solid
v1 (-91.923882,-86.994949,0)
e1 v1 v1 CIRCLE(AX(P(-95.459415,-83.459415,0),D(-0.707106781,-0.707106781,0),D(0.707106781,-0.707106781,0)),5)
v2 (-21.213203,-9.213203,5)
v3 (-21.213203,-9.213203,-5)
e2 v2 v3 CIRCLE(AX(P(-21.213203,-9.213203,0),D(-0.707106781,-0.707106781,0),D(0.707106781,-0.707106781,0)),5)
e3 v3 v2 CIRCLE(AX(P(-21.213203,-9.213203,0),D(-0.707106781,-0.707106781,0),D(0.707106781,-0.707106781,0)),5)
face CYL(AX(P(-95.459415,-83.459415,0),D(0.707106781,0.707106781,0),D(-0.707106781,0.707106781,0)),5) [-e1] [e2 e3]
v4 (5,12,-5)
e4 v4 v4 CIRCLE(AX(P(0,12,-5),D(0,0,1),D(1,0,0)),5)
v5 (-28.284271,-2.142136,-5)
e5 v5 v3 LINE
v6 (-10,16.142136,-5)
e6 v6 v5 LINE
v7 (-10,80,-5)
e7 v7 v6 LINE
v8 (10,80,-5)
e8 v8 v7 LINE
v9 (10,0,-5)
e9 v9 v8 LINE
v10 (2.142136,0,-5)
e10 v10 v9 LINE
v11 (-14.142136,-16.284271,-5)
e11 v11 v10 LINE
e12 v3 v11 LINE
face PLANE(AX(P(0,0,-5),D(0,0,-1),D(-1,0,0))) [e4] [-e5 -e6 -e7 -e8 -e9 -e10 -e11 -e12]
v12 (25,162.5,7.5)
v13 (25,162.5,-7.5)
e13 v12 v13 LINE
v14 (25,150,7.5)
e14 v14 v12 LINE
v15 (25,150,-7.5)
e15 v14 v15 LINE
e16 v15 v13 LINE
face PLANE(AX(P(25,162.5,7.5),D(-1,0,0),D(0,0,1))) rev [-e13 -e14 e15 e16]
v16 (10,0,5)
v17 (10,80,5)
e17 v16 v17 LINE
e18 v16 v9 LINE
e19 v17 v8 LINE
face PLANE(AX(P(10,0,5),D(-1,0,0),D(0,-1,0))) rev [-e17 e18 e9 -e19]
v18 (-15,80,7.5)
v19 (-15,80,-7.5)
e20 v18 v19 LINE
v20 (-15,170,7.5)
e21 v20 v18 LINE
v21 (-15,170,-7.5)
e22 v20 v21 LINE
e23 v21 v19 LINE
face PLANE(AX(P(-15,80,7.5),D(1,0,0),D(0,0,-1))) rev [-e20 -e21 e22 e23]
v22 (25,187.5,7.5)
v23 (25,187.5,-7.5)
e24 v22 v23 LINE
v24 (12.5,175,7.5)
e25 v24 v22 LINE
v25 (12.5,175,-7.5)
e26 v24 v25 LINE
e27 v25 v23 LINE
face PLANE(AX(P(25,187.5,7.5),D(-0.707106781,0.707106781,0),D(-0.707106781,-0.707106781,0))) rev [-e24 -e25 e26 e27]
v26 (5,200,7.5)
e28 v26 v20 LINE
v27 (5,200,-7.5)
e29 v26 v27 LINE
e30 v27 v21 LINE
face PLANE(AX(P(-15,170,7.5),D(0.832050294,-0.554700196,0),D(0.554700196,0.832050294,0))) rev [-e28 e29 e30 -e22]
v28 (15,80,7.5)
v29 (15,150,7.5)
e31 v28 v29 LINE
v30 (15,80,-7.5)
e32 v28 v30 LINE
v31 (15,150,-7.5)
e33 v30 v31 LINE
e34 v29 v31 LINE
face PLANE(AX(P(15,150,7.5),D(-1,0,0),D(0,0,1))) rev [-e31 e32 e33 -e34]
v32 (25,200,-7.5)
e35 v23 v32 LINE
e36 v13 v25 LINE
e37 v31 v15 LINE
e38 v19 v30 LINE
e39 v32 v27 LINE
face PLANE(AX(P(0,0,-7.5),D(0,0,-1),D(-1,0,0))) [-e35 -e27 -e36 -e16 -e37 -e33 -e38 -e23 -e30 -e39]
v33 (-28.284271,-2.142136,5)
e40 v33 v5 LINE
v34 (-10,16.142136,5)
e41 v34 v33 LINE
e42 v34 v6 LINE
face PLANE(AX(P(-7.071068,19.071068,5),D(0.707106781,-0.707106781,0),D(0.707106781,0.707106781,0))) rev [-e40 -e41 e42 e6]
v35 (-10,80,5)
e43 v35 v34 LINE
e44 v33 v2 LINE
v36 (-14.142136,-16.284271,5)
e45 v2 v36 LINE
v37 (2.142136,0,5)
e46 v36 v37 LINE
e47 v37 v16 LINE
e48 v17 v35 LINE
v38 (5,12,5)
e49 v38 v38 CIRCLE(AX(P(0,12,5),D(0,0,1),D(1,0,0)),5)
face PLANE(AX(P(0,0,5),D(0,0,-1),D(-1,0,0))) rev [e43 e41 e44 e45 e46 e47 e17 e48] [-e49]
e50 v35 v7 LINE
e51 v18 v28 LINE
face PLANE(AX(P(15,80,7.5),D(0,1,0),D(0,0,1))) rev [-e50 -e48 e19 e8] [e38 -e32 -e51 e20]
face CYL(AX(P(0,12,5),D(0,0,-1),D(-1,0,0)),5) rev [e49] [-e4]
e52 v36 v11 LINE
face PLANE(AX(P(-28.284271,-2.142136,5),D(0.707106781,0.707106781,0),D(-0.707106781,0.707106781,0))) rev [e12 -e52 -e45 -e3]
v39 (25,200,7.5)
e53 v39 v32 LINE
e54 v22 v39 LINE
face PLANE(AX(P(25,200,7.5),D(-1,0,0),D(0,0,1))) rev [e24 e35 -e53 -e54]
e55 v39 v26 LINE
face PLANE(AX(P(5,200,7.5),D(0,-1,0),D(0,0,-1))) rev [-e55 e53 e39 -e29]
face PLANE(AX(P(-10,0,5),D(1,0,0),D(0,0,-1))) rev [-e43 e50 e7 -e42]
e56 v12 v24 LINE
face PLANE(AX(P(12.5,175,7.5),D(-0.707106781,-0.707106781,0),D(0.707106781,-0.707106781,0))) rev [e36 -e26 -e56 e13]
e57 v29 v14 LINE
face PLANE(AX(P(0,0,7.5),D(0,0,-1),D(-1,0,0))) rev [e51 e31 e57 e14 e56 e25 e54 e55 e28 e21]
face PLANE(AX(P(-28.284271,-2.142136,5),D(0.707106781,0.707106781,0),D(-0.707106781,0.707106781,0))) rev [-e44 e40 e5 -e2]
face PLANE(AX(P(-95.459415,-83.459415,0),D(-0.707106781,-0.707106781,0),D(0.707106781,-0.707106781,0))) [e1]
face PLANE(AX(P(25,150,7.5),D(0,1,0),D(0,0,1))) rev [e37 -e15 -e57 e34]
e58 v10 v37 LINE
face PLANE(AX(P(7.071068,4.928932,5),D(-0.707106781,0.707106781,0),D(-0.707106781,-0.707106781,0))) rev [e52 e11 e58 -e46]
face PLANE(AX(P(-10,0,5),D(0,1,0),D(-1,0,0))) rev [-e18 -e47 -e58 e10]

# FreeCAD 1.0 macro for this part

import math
import FreeCAD as App
import Part
import Sketcher

V = App.Vector
Q = App.Units.Quantity

doc = App.newDocument("Part")
body = doc.addObject("PartDesign::Body", "Body")

sketch1 = body.newObject("Sketcher::SketchObject", "Sketch")
sketch1.AttachmentSupport = (doc.getObject("XY_Plane"), [""])
sketch1.MapMode = "FlatFace"
sketch1.addGeometry(Part.LineSegment(V(-10, 80, 0), V(-10, 0, 0)), False)
sketch1.addGeometry(Part.LineSegment(V(-10, 0, 0), V(10, 0, 0)), False)
sketch1.addGeometry(Part.LineSegment(V(10, 0, 0), V(10, 80, 0)), False)
sketch1.addGeometry(Part.LineSegment(V(10, 80, 0), V(-10, 80, 0)), False)
sketch1.addGeometry(Part.Circle(V(0, 12, 0), V(0, 0, 1), 5), False)
sketch1.addConstraint(Sketcher.Constraint("Coincident", 0, 2, 1, 1))
sketch1.addConstraint(Sketcher.Constraint("Coincident", 1, 2, 2, 1))
sketch1.addConstraint(Sketcher.Constraint("Coincident", 2, 2, 3, 1))
sketch1.addConstraint(Sketcher.Constraint("Coincident", 3, 2, 0, 1))
sketch1.addConstraint(Sketcher.Constraint("Vertical", 0))
sketch1.addConstraint(Sketcher.Constraint("Horizontal", 1))
sketch1.addConstraint(Sketcher.Constraint("Vertical", 2))
sketch1.addConstraint(Sketcher.Constraint("Horizontal", 3))
sketch1.addConstraint(Sketcher.Constraint("Symmetric", 0, 2, 1, 2, -1, 1))
sketch1.addConstraint(Sketcher.Constraint("PointOnObject", 4, 3, -2))
sketch1.addConstraint(Sketcher.Constraint("Diameter", 4, 10.0))
sketch1.addConstraint(Sketcher.Constraint("DistanceX", 1, 1, 1, 2, 20.0))
sketch1.addConstraint(Sketcher.Constraint("DistanceY", 0, 2, 0, 1, 80.0))
sketch1.addConstraint(Sketcher.Constraint("DistanceY", -1, 1, 4, 3, 12.0))
pad1 = body.newObject("PartDesign::Pad", "Pad")
pad1.Profile = sketch1
pad1.Length = 10
pad1.Midplane = True

sketch2 = body.newObject("Sketcher::SketchObject", "Sketch001")
sketch2.AttachmentSupport = (doc.getObject("XY_Plane"), [""])
sketch2.MapMode = "FlatFace"
sketch2.addGeometry(Part.LineSegment(V(-15, 170, 0), V(-15, 80, 0)), False)
sketch2.addGeometry(Part.LineSegment(V(-15, 80, 0), V(15, 80, 0)), False)
sketch2.addGeometry(Part.LineSegment(V(15, 80, 0), V(15, 150, 0)), False)
sketch2.addGeometry(Part.LineSegment(V(15, 150, 0), V(25, 150, 0)), False)
sketch2.addGeometry(Part.LineSegment(V(25, 150, 0), V(25, 162.5, 0)), False)
sketch2.addGeometry(Part.LineSegment(V(25, 162.5, 0), V(12.5, 175, 0)), False)
sketch2.addGeometry(Part.LineSegment(V(12.5, 175, 0), V(25, 187.5, 0)), False)
sketch2.addGeometry(Part.LineSegment(V(25, 187.5, 0), V(25, 200, 0)), False)
sketch2.addGeometry(Part.LineSegment(V(25, 200, 0), V(5, 200, 0)), False)
sketch2.addGeometry(Part.LineSegment(V(5, 200, 0), V(-15, 170, 0)), False)
sketch2.addConstraint(Sketcher.Constraint("Coincident", 0, 2, 1, 1))
sketch2.addConstraint(Sketcher.Constraint("Coincident", 1, 2, 2, 1))
sketch2.addConstraint(Sketcher.Constraint("Coincident", 2, 2, 3, 1))
sketch2.addConstraint(Sketcher.Constraint("Coincident", 3, 2, 4, 1))
sketch2.addConstraint(Sketcher.Constraint("Coincident", 4, 2, 5, 1))
sketch2.addConstraint(Sketcher.Constraint("Coincident", 5, 2, 6, 1))
sketch2.addConstraint(Sketcher.Constraint("Coincident", 6, 2, 7, 1))
sketch2.addConstraint(Sketcher.Constraint("Coincident", 7, 2, 8, 1))
sketch2.addConstraint(Sketcher.Constraint("Coincident", 8, 2, 9, 1))
sketch2.addConstraint(Sketcher.Constraint("Coincident", 9, 2, 0, 1))
sketch2.addConstraint(Sketcher.Constraint("Vertical", 0))
sketch2.addConstraint(Sketcher.Constraint("Horizontal", 1))
sketch2.addConstraint(Sketcher.Constraint("Vertical", 2))
sketch2.addConstraint(Sketcher.Constraint("Horizontal", 3))
sketch2.addConstraint(Sketcher.Constraint("Vertical", 4))
sketch2.addConstraint(Sketcher.Constraint("Vertical", 7))
sketch2.addConstraint(Sketcher.Constraint("Horizontal", 8))
sketch2.addConstraint(Sketcher.Constraint("Perpendicular", 5, 6))
sketch2.addConstraint(Sketcher.Constraint("Vertical", 4, 2, 6, 2))
sketch2.addConstraint(Sketcher.Constraint("Equal", 4, 7))
sketch2.addConstraint(Sketcher.Constraint("Equal", 5, 6))
sketch2.addConstraint(Sketcher.Constraint("DistanceX", 1, 1, 1, 2, 30.0))
sketch2.addConstraint(Sketcher.Constraint("DistanceX", 3, 1, 3, 2, 10.0))
sketch2.addConstraint(Sketcher.Constraint("DistanceX", 8, 2, 8, 1, 20.0))
sketch2.addConstraint(Sketcher.Constraint("DistanceY", 0, 2, 0, 1, 90.0))
sketch2.addConstraint(Sketcher.Constraint("DistanceY", 2, 1, 2, 2, 70.0))
sketch2.addConstraint(Sketcher.Constraint("DistanceY", 4, 1, 4, 2, 12.5))
sketch2.addConstraint(Sketcher.Constraint("DistanceX", 0, 2, -1, 1, 15.0))
sketch2.addConstraint(Sketcher.Constraint("DistanceY", -1, 1, 0, 2, 80.0))
sketch2.addConstraint(Sketcher.Constraint("DistanceY", -1, 1, 5, 2, 175.0))
pad2 = body.newObject("PartDesign::Pad", "Pad001")
pad2.Profile = sketch2
pad2.Length = 15
pad2.Midplane = True

sketch3 = body.newObject("Sketcher::SketchObject", "Sketch002")
sketch3.AttachmentSupport = (doc.getObject("XY_Plane"), [""])
sketch3.MapMode = "FlatFace"
sketch3.addGeometry(Part.LineSegment(V(-7.071068, 19.071068, 0), V(-28.284271, -2.142136, 0)), False)
sketch3.addGeometry(Part.LineSegment(V(-28.284271, -2.142136, 0), V(-14.142136, -16.284271, 0)), False)
sketch3.addGeometry(Part.LineSegment(V(-14.142136, -16.284271, 0), V(7.071068, 4.928932, 0)), False)
sketch3.addGeometry(Part.LineSegment(V(7.071068, 4.928932, 0), V(3.535534, 8.464466, 0)), False)
sketch3.addGeometry(Part.ArcOfCircle(Part.Circle(V(0, 12, 0), V(0, 0, 1), 5), math.radians(135), math.radians(315)), False)
sketch3.addGeometry(Part.LineSegment(V(-3.535534, 15.535534, 0), V(-7.071068, 19.071068, 0)), False)
sketch3.addConstraint(Sketcher.Constraint("Coincident", 0, 2, 1, 1))
sketch3.addConstraint(Sketcher.Constraint("Coincident", 1, 2, 2, 1))
sketch3.addConstraint(Sketcher.Constraint("Coincident", 2, 2, 3, 1))
sketch3.addConstraint(Sketcher.Constraint("Coincident", 3, 2, 4, 2))
sketch3.addConstraint(Sketcher.Constraint("Coincident", 4, 1, 5, 1))
sketch3.addConstraint(Sketcher.Constraint("Coincident", 5, 2, 0, 1))
sketch3.addConstraint(Sketcher.Constraint("PointOnObject", 4, 3, -2))
sketch3.addConstraint(Sketcher.Constraint("Perpendicular", 0, 1))
sketch3.addConstraint(Sketcher.Constraint("Perpendicular", 1, 2))
sketch3.addConstraint(Sketcher.Constraint("Perpendicular", 2, 3))
sketch3.addConstraint(Sketcher.Constraint("Parallel", 3, 5))
sketch3.addConstraint(Sketcher.Constraint("Equal", 0, 2))
sketch3.addConstraint(Sketcher.Constraint("Equal", 3, 5))
sketch3.addConstraint(Sketcher.Constraint("Radius", 4, 5.0))
sketch3.addConstraint(Sketcher.Constraint("Angle", 0, Q("-135 deg")))
sketch3.addConstraint(Sketcher.Constraint("Distance", 0, 30.0))
sketch3.addConstraint(Sketcher.Constraint("Distance", 1, 20.0))
sketch3.addConstraint(Sketcher.Constraint("DistanceY", -1, 1, 4, 3, 12.0))
sketch3.addConstraint(Sketcher.Constraint("DistanceX", 0, 2, -1, 1, 28.284271))
pad3 = body.newObject("PartDesign::Pad", "Pad002")
pad3.Profile = sketch3
pad3.Length = 10
pad3.Midplane = True

sketch4 = body.newObject("Sketcher::SketchObject", "Sketch003")
sketch4.Placement = App.Placement(V(-15.213203, -15.213203, 0), App.Rotation(V(0, 0, 1), V(-0.707106781, 0.707106781, 0), V(-0.707106781, -0.707106781, 0), "ZXY"))
sketch4.addGeometry(Part.Circle(V(0, 8.485281, 0), V(0, 0, 1), 5), False)
sketch4.addConstraint(Sketcher.Constraint("PointOnObject", 0, 3, -2))
sketch4.addConstraint(Sketcher.Constraint("Diameter", 0, 10.0))
sketch4.addConstraint(Sketcher.Constraint("DistanceY", -1, 1, 0, 3, 8.485281))
pad4 = body.newObject("PartDesign::Pad", "Pad003")
pad4.Profile = sketch4
pad4.Length = 105

doc.recompute()
